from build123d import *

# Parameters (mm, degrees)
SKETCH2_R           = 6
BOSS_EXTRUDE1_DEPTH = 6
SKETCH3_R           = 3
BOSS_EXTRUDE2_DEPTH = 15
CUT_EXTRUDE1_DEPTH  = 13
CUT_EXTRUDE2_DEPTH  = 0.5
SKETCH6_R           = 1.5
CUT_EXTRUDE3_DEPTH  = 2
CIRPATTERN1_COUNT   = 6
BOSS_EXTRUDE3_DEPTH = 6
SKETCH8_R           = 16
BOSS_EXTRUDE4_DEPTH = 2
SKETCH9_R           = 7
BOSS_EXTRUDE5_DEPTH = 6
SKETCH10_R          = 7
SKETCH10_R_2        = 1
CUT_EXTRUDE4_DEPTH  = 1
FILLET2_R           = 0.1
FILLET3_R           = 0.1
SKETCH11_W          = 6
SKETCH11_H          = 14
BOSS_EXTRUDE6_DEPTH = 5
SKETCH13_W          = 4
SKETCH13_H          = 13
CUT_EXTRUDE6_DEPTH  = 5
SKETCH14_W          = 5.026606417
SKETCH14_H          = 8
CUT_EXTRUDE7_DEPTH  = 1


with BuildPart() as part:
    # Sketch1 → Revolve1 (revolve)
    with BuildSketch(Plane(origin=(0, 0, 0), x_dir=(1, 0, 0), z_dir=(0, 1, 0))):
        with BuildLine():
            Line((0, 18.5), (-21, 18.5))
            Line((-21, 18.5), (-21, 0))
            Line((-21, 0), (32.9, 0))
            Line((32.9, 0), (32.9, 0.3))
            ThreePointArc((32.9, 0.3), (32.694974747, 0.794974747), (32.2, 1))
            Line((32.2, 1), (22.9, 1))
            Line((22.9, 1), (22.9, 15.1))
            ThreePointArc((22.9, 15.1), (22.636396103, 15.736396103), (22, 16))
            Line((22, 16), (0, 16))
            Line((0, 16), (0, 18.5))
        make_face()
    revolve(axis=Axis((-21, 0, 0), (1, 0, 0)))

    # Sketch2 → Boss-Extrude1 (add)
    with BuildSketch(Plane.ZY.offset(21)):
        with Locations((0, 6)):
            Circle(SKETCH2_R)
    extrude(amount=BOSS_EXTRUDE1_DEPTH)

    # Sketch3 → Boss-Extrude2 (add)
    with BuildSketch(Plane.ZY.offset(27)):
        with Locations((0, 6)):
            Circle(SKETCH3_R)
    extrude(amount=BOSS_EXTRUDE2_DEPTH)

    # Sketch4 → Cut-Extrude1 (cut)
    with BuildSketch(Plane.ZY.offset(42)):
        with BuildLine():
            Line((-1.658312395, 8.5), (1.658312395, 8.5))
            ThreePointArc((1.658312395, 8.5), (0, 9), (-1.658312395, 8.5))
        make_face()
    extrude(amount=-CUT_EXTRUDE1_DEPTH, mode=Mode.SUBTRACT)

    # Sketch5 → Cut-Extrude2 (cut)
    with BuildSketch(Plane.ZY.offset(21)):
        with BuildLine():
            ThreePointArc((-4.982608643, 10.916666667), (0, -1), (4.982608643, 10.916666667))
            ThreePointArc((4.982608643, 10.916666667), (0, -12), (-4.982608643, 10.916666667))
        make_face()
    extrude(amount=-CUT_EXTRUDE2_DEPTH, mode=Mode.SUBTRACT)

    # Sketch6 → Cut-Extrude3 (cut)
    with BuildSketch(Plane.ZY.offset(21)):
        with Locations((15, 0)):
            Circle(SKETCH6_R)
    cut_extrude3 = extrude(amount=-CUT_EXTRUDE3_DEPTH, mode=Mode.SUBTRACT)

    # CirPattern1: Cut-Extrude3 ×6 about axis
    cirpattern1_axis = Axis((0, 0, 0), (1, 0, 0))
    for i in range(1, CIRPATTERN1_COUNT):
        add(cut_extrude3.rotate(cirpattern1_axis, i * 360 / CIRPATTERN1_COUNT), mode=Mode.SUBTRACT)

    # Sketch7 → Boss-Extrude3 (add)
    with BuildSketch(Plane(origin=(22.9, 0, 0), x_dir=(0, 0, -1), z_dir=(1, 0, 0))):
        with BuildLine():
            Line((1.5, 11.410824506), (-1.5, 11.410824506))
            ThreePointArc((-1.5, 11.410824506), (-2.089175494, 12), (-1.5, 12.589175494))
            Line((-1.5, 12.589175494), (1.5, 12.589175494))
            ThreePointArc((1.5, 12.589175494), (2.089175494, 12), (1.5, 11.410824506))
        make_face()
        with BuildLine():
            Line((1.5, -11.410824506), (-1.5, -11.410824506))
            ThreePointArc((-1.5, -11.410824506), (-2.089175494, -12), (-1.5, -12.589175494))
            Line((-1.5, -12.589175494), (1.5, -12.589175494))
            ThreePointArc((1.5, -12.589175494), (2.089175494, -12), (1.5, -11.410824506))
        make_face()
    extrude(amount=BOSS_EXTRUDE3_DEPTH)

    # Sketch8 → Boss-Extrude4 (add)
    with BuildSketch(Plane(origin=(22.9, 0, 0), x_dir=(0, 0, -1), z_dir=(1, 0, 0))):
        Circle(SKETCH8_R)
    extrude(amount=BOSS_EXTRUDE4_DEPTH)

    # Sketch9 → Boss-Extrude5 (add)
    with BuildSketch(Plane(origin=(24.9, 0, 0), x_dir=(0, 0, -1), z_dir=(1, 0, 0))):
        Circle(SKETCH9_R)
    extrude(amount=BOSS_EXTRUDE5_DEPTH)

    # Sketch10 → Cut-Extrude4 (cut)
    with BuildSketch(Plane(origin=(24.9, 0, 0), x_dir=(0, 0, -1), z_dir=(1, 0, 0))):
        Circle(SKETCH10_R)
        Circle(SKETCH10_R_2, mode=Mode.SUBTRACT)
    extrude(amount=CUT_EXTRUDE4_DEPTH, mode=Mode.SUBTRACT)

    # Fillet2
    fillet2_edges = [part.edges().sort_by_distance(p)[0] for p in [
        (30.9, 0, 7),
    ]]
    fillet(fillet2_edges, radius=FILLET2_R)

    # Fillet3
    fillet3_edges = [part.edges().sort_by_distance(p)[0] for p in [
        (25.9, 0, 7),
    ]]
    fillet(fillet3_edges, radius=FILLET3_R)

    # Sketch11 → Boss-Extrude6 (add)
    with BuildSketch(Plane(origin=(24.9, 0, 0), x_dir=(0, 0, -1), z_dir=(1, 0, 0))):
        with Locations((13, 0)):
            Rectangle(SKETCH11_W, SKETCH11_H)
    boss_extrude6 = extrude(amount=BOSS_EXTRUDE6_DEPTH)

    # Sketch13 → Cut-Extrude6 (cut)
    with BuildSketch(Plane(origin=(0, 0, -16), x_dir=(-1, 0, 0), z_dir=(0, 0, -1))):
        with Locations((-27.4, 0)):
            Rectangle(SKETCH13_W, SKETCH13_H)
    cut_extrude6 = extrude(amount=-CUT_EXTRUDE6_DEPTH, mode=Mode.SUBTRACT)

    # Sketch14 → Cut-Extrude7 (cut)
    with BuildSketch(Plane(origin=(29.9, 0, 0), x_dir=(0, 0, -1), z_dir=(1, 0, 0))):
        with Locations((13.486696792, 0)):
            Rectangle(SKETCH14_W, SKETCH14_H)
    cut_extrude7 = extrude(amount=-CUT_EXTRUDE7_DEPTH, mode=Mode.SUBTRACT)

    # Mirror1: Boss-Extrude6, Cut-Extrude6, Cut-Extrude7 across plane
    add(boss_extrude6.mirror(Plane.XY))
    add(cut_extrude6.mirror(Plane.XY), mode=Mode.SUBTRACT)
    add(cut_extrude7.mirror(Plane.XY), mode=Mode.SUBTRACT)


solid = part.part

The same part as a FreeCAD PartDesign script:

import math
import FreeCAD as App
import Part
import Sketcher
Q = App.Units.Quantity


def edges_at(feature, points):
    """Names of the edges that pass closest to the given points."""
    edges = feature.Shape.Edges
    near = lambda p: min(range(len(edges)), key=lambda i: edges[i].distToShape(Part.Vertex(*p))[0])
    return sorted({f"Edge{near(p) + 1}" for p in points})


def add_polygon(sketch, points):
    """Adds a closed chain of lines whose ends are joined by coincident constraints."""
    first, n = sketch.GeometryCount, len(points)
    for a, b in zip(points, points[1:] + points[:1]):
        sketch.addGeometry(Part.LineSegment(App.Vector(*a, 0), App.Vector(*b, 0)), False)
    for i in range(n):
        sketch.addConstraint(Sketcher.Constraint("Coincident", first + i, 2, first + (i + 1) % n, 1))

doc = App.newDocument("Part")
body = doc.addObject("PartDesign::Body", "Body")

# Sketch on XZ plane
sketch1 = body.newObject("Sketcher::SketchObject", "Sketch")
sketch1.AttachmentSupport = (doc.getObject("XZ_Plane"), [""])
sketch1.MapMode = "FlatFace"
sketch1.addGeometry(Part.LineSegment(App.Vector(0, -18.5, 0), App.Vector(-21, -18.5, 0)), False)
sketch1.addGeometry(Part.LineSegment(App.Vector(-21, -18.5, 0), App.Vector(-21, 0, 0)), False)
sketch1.addGeometry(Part.LineSegment(App.Vector(-21, 0, 0), App.Vector(32.9, 0, 0)), False)
sketch1.addGeometry(Part.LineSegment(App.Vector(32.9, 0, 0), App.Vector(32.9, -0.3, 0)), False)
sketch1.addGeometry(Part.ArcOfCircle(Part.Circle(App.Vector(32.2, -0.3, 0), App.Vector(0, 0, 1), 0.7), math.radians(-90), math.radians(0)), False)
sketch1.addGeometry(Part.LineSegment(App.Vector(32.2, -1, 0), App.Vector(22.9, -1, 0)), False)
sketch1.addGeometry(Part.LineSegment(App.Vector(22.9, -1, 0), App.Vector(22.9, -15.1, 0)), False)
sketch1.addGeometry(Part.ArcOfCircle(Part.Circle(App.Vector(22, -15.1, 0), App.Vector(0, 0, 1), 0.9), math.radians(-90), math.radians(0)), False)
sketch1.addGeometry(Part.LineSegment(App.Vector(22, -16, 0), App.Vector(0, -16, 0)), False)
sketch1.addGeometry(Part.LineSegment(App.Vector(0, -16, 0), App.Vector(0, -18.5, 0)), False)
sketch1.addConstraint(Sketcher.Constraint("Coincident", 0, 2, 1, 1))
sketch1.addConstraint(Sketcher.Constraint("Coincident", 1, 2, 2, 1))
sketch1.addConstraint(Sketcher.Constraint("Coincident", 2, 2, 3, 1))
sketch1.addConstraint(Sketcher.Constraint("Tangent", 3, 2, 4, 2))
sketch1.addConstraint(Sketcher.Constraint("Tangent", 4, 1, 5, 1))
sketch1.addConstraint(Sketcher.Constraint("Coincident", 5, 2, 6, 1))
sketch1.addConstraint(Sketcher.Constraint("Tangent", 6, 2, 7, 2))
sketch1.addConstraint(Sketcher.Constraint("Tangent", 7, 1, 8, 1))
sketch1.addConstraint(Sketcher.Constraint("Coincident", 8, 2, 9, 1))
sketch1.addConstraint(Sketcher.Constraint("Coincident", 9, 2, 0, 1))
sketch1.addConstraint(Sketcher.Constraint("Horizontal", 0))
sketch1.addConstraint(Sketcher.Constraint("Vertical", 1))
sketch1.addConstraint(Sketcher.Constraint("Horizontal", 2))
sketch1.addConstraint(Sketcher.Constraint("Vertical", 3))
sketch1.addConstraint(Sketcher.Constraint("Horizontal", 5))
sketch1.addConstraint(Sketcher.Constraint("Vertical", 6))
sketch1.addConstraint(Sketcher.Constraint("Horizontal", 8))
sketch1.addConstraint(Sketcher.Constraint("Vertical", 9))
sketch1.addConstraint(Sketcher.Constraint("PointOnObject", 1, 2, -1))
sketch1.addConstraint(Sketcher.Constraint("PointOnObject", 8, 2, -2))
sketch1.addConstraint(Sketcher.Constraint("Radius", 4, Q("0.7 mm")))
sketch1.addConstraint(Sketcher.Constraint("Radius", 7, Q("0.9 mm")))
sketch1.addConstraint(Sketcher.Constraint("DistanceX", 0, 2, 0, 1, Q("21 mm")))
sketch1.addConstraint(Sketcher.Constraint("DistanceX", 8, 2, 8, 1, Q("22 mm")))
sketch1.addConstraint(Sketcher.Constraint("DistanceX", 2, 1, 2, 2, Q("53.9 mm")))
sketch1.addConstraint(Sketcher.Constraint("DistanceY", 1, 1, 1, 2, Q("18.5 mm")))
sketch1.addConstraint(Sketcher.Constraint("DistanceY", 3, 2, 3, 1, Q("0.3 mm")))
sketch1.addConstraint(Sketcher.Constraint("DistanceY", 6, 2, 6, 1, Q("14.1 mm")))
revolution = body.newObject("PartDesign::Revolution", "Revolution")
revolution.Profile = sketch1
revolution.ReferenceAxis = (sketch1, ["H_Axis"])
revolution.Angle = 360

# Sketch on YZ plane
sketch2 = body.newObject("Sketcher::SketchObject", "Sketch001")
sketch2.AttachmentSupport = (doc.getObject("YZ_Plane"), [""])
sketch2.MapMode = "FlatFace"
sketch2.AttachmentOffset = App.Placement(App.Vector(0, 0, -21), App.Rotation())
sketch2.addGeometry(Part.Circle(App.Vector(6, 0, 0), App.Vector(0, 0, 1), 6), False)
sketch2.addConstraint(Sketcher.Constraint("PointOnObject", 0, 3, -1))
sketch2.addConstraint(Sketcher.Constraint("Diameter", 0, Q("12 mm")))
sketch2.addConstraint(Sketcher.Constraint("DistanceX", -1, 1, 0, 3, Q("6 mm")))
pad1 = body.newObject("PartDesign::Pad", "Pad")
pad1.Profile = sketch2
pad1.Length = 6
pad1.Reversed = True

# Sketch on YZ plane
sketch3 = body.newObject("Sketcher::SketchObject", "Sketch002")
sketch3.AttachmentSupport = (doc.getObject("YZ_Plane"), [""])
sketch3.MapMode = "FlatFace"
sketch3.AttachmentOffset = App.Placement(App.Vector(0, 0, -27), App.Rotation())
sketch3.addGeometry(Part.Circle(App.Vector(6, 0, 0), App.Vector(0, 0, 1), 3), False)
sketch3.addConstraint(Sketcher.Constraint("PointOnObject", 0, 3, -1))
sketch3.addConstraint(Sketcher.Constraint("Diameter", 0, Q("6 mm")))
sketch3.addConstraint(Sketcher.Constraint("DistanceX", -1, 1, 0, 3, Q("6 mm")))
pad2 = body.newObject("PartDesign::Pad", "Pad001")
pad2.Profile = sketch3
pad2.Length = 15
pad2.Reversed = True

# Sketch on YZ plane
sketch4 = body.newObject("Sketcher::SketchObject", "Sketch003")
sketch4.AttachmentSupport = (doc.getObject("YZ_Plane"), [""])
sketch4.MapMode = "FlatFace"
sketch4.AttachmentOffset = App.Placement(App.Vector(0, 0, -42), App.Rotation())
sketch4.addGeometry(Part.LineSegment(App.Vector(8.5, -1.7, 0), App.Vector(8.5, 1.7, 0)), False)
sketch4.addGeometry(Part.ArcOfCircle(Part.Circle(App.Vector(6, 0, 0), App.Vector(0, 0, 1), 3), math.radians(-34), math.radians(34)), False)
sketch4.addConstraint(Sketcher.Constraint("Coincident", 0, 1, 1, 1))
sketch4.addConstraint(Sketcher.Constraint("Coincident", 1, 2, 0, 2))
sketch4.addConstraint(Sketcher.Constraint("Vertical", 0))
sketch4.addConstraint(Sketcher.Constraint("PointOnObject", 1, 3, -1))
sketch4.addConstraint(Sketcher.Constraint("Radius", 1, Q("3 mm")))
sketch4.addConstraint(Sketcher.Constraint("DistanceX", -1, 1, 1, 3, Q("6 mm")))
sketch4.addConstraint(Sketcher.Constraint("DistanceX", -1, 1, 0, 1, Q("8.5 mm")))
pocket1 = body.newObject("PartDesign::Pocket", "Pocket")
pocket1.Profile = sketch4
pocket1.Length = 13
pocket1.Reversed = True

# Sketch on YZ plane
sketch5 = body.newObject("Sketcher::SketchObject", "Sketch004")
sketch5.AttachmentSupport = (doc.getObject("YZ_Plane"), [""])
sketch5.MapMode = "FlatFace"
sketch5.AttachmentOffset = App.Placement(App.Vector(0, 0, -21), App.Rotation())
sketch5.addGeometry(Part.ArcOfCircle(Part.Circle(App.Vector(6, 0, 0), App.Vector(0, 0, 1), 7), math.radians(45), math.radians(315)), False)
sketch5.addGeometry(Part.ArcOfCircle(Part.Circle(App.Vector(0, 0, 0), App.Vector(0, 0, 1), 12), math.radians(25), math.radians(335)), False)
sketch5.addConstraint(Sketcher.Constraint("Coincident", 0, 1, 1, 1))
sketch5.addConstraint(Sketcher.Constraint("Coincident", 1, 2, 0, 2))
sketch5.addConstraint(Sketcher.Constraint("Coincident", 1, 3, -1, 1))
sketch5.addConstraint(Sketcher.Constraint("PointOnObject", 0, 3, -1))
sketch5.addConstraint(Sketcher.Constraint("Radius", 0, Q("7 mm")))
sketch5.addConstraint(Sketcher.Constraint("Radius", 1, Q("12 mm")))
sketch5.addConstraint(Sketcher.Constraint("DistanceX", -1, 1, 0, 3, Q("6 mm")))
pocket2 = body.newObject("PartDesign::Pocket", "Pocket001")
pocket2.Profile = sketch5
pocket2.Length = 0.5
pocket2.Reversed = True

# Sketch on YZ plane
sketch6 = body.newObject("Sketcher::SketchObject", "Sketch005")
sketch6.AttachmentSupport = (doc.getObject("YZ_Plane"), [""])
sketch6.MapMode = "FlatFace"
sketch6.AttachmentOffset = App.Placement(App.Vector(0, 0, -21), App.Rotation())
sketch6.addGeometry(Part.Circle(App.Vector(0, 15, 0), App.Vector(0, 0, 1), 1.5), False)
sketch6.addConstraint(Sketcher.Constraint("PointOnObject", 0, 3, -2))
sketch6.addConstraint(Sketcher.Constraint("Diameter", 0, Q("3 mm")))
sketch6.addConstraint(Sketcher.Constraint("DistanceY", -1, 1, 0, 3, Q("15 mm")))
pocket3 = body.newObject("PartDesign::Pocket", "Pocket002")
pocket3.Profile = sketch6
pocket3.Length = 2
pocket3.Reversed = True
doc.recompute()

polarpattern = body.newObject("PartDesign::PolarPattern", "PolarPattern")
polarpattern.Originals = [pocket3]
polarpattern.Axis = (doc.getObject("X_Axis"), [""])
polarpattern.Angle = 360
polarpattern.Occurrences = 6
body.Tip = polarpattern

# Sketch on YZ plane
sketch7 = body.newObject("Sketcher::SketchObject", "Sketch006")
sketch7.AttachmentSupport = (doc.getObject("YZ_Plane"), [""])
sketch7.MapMode = "FlatFace"
sketch7.AttachmentOffset = App.Placement(App.Vector(0, 0, 22.9), App.Rotation())
sketch7.addGeometry(Part.LineSegment(App.Vector(11.4, 1.5, 0), App.Vector(11.4, -1.5, 0)), False)
sketch7.addGeometry(Part.ArcOfCircle(Part.Circle(App.Vector(12, -1.5, 0), App.Vector(0, 0, 1), 0.6), math.radians(180), math.radians(360)), False)
sketch7.addGeometry(Part.LineSegment(App.Vector(12.6, -1.5, 0), App.Vector(12.6, 1.5, 0)), False)
sketch7.addGeometry(Part.ArcOfCircle(Part.Circle(App.Vector(12, 1.5, 0), App.Vector(0, 0, 1), 0.6), math.radians(0), math.radians(180)), False)
sketch7.addGeometry(Part.LineSegment(App.Vector(-11.4, -1.5, 0), App.Vector(-11.4, 1.5, 0)), False)
sketch7.addGeometry(Part.ArcOfCircle(Part.Circle(App.Vector(-12, 1.5, 0), App.Vector(0, 0, 1), 0.6), math.radians(0), math.radians(180)), False)
sketch7.addGeometry(Part.LineSegment(App.Vector(-12.6, 1.5, 0), App.Vector(-12.6, -1.5, 0)), False)
sketch7.addGeometry(Part.ArcOfCircle(Part.Circle(App.Vector(-12, -1.5, 0), App.Vector(0, 0, 1), 0.6), math.radians(180), math.radians(360)), False)
sketch7.addConstraint(Sketcher.Constraint("Tangent", 0, 2, 1, 1))
sketch7.addConstraint(Sketcher.Constraint("Tangent", 1, 2, 2, 1))
sketch7.addConstraint(Sketcher.Constraint("Tangent", 2, 2, 3, 1))
sketch7.addConstraint(Sketcher.Constraint("Tangent", 3, 2, 0, 1))
sketch7.addConstraint(Sketcher.Constraint("Tangent", 4, 2, 5, 1))
sketch7.addConstraint(Sketcher.Constraint("Tangent", 5, 2, 6, 1))
sketch7.addConstraint(Sketcher.Constraint("Tangent", 6, 2, 7, 1))
sketch7.addConstraint(Sketcher.Constraint("Tangent", 7, 2, 4, 1))
sketch7.addConstraint(Sketcher.Constraint("Vertical", 0))
sketch7.addConstraint(Sketcher.Constraint("Vertical", 2))
sketch7.addConstraint(Sketcher.Constraint("Vertical", 4))
sketch7.addConstraint(Sketcher.Constraint("Vertical", 6))
sketch7.addConstraint(Sketcher.Constraint("Equal", 3, 5))
sketch7.addConstraint(Sketcher.Constraint("Symmetric", 1, 3, 5, 3, -1, 1))
sketch7.addConstraint(Sketcher.Constraint("Horizontal", 3, 3, 5, 3))
sketch7.addConstraint(Sketcher.Constraint("Horizontal", 1, 3, 7, 3))
sketch7.addConstraint(Sketcher.Constraint("DistanceY", 0, 2, 0, 1, Q("3 mm")))
sketch7.addConstraint(Sketcher.Constraint("DistanceX", -1, 1, 1, 3, Q("12 mm")))
sketch7.addConstraint(Sketcher.Constraint("Radius", 1, Q("0.589175 mm")))
pad3 = body.newObject("PartDesign::Pad", "Pad002")
pad3.Profile = sketch7
pad3.Length = 6

# Sketch on YZ plane
sketch8 = body.newObject("Sketcher::SketchObject", "Sketch007")
sketch8.AttachmentSupport = (doc.getObject("YZ_Plane"), [""])
sketch8.MapMode = "FlatFace"
sketch8.AttachmentOffset = App.Placement(App.Vector(0, 0, 22.9), App.Rotation())
sketch8.addGeometry(Part.Circle(App.Vector(0, 0, 0), App.Vector(0, 0, 1), 16), False)
sketch8.addConstraint(Sketcher.Constraint("Coincident", 0, 3, -1, 1))
sketch8.addConstraint(Sketcher.Constraint("Diameter", 0, Q("32 mm")))
pad4 = body.newObject("PartDesign::Pad", "Pad003")
pad4.Profile = sketch8
pad4.Length = 2

# Sketch on YZ plane
sketch9 = body.newObject("Sketcher::SketchObject", "Sketch008")
sketch9.AttachmentSupport = (doc.getObject("YZ_Plane"), [""])
sketch9.MapMode = "FlatFace"
sketch9.AttachmentOffset = App.Placement(App.Vector(0, 0, 24.9), App.Rotation())
sketch9.addGeometry(Part.Circle(App.Vector(0, 0, 0), App.Vector(0, 0, 1), 7), False)
sketch9.addConstraint(Sketcher.Constraint("Coincident", 0, 3, -1, 1))
sketch9.addConstraint(Sketcher.Constraint("Diameter", 0, Q("14 mm")))
pad5 = body.newObject("PartDesign::Pad", "Pad004")
pad5.Profile = sketch9
pad5.Length = 6

# Sketch on YZ plane
sketch10 = body.newObject("Sketcher::SketchObject", "Sketch009")
sketch10.AttachmentSupport = (doc.getObject("YZ_Plane"), [""])
sketch10.MapMode = "FlatFace"
sketch10.AttachmentOffset = App.Placement(App.Vector(0, 0, 24.9), App.Rotation())
sketch10.addGeometry(Part.Circle(App.Vector(0, 0, 0), App.Vector(0, 0, 1), 7), False)
sketch10.addGeometry(Part.Circle(App.Vector(0, 0, 0), App.Vector(0, 0, 1), 1), False)
sketch10.addConstraint(Sketcher.Constraint("Coincident", 0, 3, -1, 1))
sketch10.addConstraint(Sketcher.Constraint("Coincident", 1, 3, -1, 1))
sketch10.addConstraint(Sketcher.Constraint("Diameter", 0, Q("14 mm")))
sketch10.addConstraint(Sketcher.Constraint("Diameter", 1, Q("2 mm")))
pocket4 = body.newObject("PartDesign::Pocket", "Pocket003")
pocket4.Profile = sketch10
pocket4.Length = 1
pocket4.Reversed = True
doc.recompute()

fillet = body.newObject("PartDesign::Fillet", "Fillet")
fillet.Base = (pocket4, edges_at(pocket4, [(30.9, 0, 7)]))
fillet.Radius = 0.1
doc.recompute()

fillet2 = body.newObject("PartDesign::Fillet", "Fillet001")
fillet2.Base = (fillet, edges_at(fillet, [(25.9, 0, 7)]))
fillet2.Radius = 0.1

# Sketch on YZ plane
sketch11 = body.newObject("Sketcher::SketchObject", "Sketch010")
sketch11.AttachmentSupport = (doc.getObject("YZ_Plane"), [""])
sketch11.MapMode = "FlatFace"
sketch11.AttachmentOffset = App.Placement(App.Vector(0, 0, 24.9), App.Rotation())
add_polygon(sketch11, [(7, -10), (-7, -10), (-7, -16), (7, -16)])  # lines 0-3
sketch11.addConstraint(Sketcher.Constraint("Horizontal", 0))
sketch11.addConstraint(Sketcher.Constraint("Vertical", 1))
sketch11.addConstraint(Sketcher.Constraint("Horizontal", 2))
sketch11.addConstraint(Sketcher.Constraint("Vertical", 3))
sketch11.addConstraint(Sketcher.Constraint("DistanceX", 0, 2, 0, 1, Q("14 mm")))
sketch11.addConstraint(Sketcher.Constraint("DistanceY", 1, 2, 1, 1, Q("6 mm")))
sketch11.addConstraint(Sketcher.Constraint("DistanceX", 0, 2, -1, 1, Q("7 mm")))
sketch11.addConstraint(Sketcher.Constraint("DistanceY", 0, 2, -1, 1, Q("10 mm")))
pad6 = body.newObject("PartDesign::Pad", "Pad005")
pad6.Profile = sketch11
pad6.Length = 5

# Sketch on XY plane
sketch12 = body.newObject("Sketcher::SketchObject", "Sketch011")
sketch12.AttachmentSupport = (doc.getObject("XY_Plane"), [""])
sketch12.MapMode = "FlatFace"
sketch12.AttachmentOffset = App.Placement(App.Vector(0, 0, -16), App.Rotation())
add_polygon(sketch12, [(29.4, 6.5), (29.4, -6.5), (25.4, -6.5), (25.4, 6.5)])  # lines 0-3
sketch12.addConstraint(Sketcher.Constraint("Vertical", 0))
sketch12.addConstraint(Sketcher.Constraint("Horizontal", 1))
sketch12.addConstraint(Sketcher.Constraint("Vertical", 2))
sketch12.addConstraint(Sketcher.Constraint("Horizontal", 3))
sketch12.addConstraint(Sketcher.Constraint("DistanceX", 1, 2, 1, 1, Q("4 mm")))
sketch12.addConstraint(Sketcher.Constraint("DistanceY", 0, 2, 0, 1, Q("13 mm")))
sketch12.addConstraint(Sketcher.Constraint("DistanceX", -1, 1, 0, 2, Q("29.4 mm")))
sketch12.addConstraint(Sketcher.Constraint("DistanceY", 0, 2, -1, 1, Q("6.5 mm")))
pocket5 = body.newObject("PartDesign::Pocket", "Pocket004")
pocket5.Profile = sketch12
pocket5.Length = 5
pocket5.Reversed = True

# Sketch on YZ plane
sketch13 = body.newObject("Sketcher::SketchObject", "Sketch012")
sketch13.AttachmentSupport = (doc.getObject("YZ_Plane"), [""])
sketch13.MapMode = "FlatFace"
sketch13.AttachmentOffset = App.Placement(App.Vector(0, 0, 29.9), App.Rotation())
add_polygon(sketch13, [(4, -11), (-4, -11), (-4, -16), (4, -16)])  # lines 0-3
sketch13.addConstraint(Sketcher.Constraint("Horizontal", 0))
sketch13.addConstraint(Sketcher.Constraint("Vertical", 1))
sketch13.addConstraint(Sketcher.Constraint("Horizontal", 2))
sketch13.addConstraint(Sketcher.Constraint("Vertical", 3))
sketch13.addConstraint(Sketcher.Constraint("DistanceX", 0, 2, 0, 1, Q("8 mm")))
sketch13.addConstraint(Sketcher.Constraint("DistanceX", 0, 2, -1, 1, Q("4 mm")))
sketch13.addConstraint(Sketcher.Constraint("DistanceY", 1, 2, -1, 1, Q("16 mm")))
sketch13.addConstraint(Sketcher.Constraint("DistanceY", 1, 2, 1, 1, Q("5.026606 mm")))
pocket6 = body.newObject("PartDesign::Pocket", "Pocket005")
pocket6.Profile = sketch13
pocket6.Length = 1
doc.recompute()

mirrored = body.newObject("PartDesign::Mirrored", "Mirrored")
mirrored.Originals = [pad6, pocket5, pocket6]
mirrored.MirrorPlane = (doc.getObject("XY_Plane"), [""])
body.Tip = mirrored

doc.recompute()
